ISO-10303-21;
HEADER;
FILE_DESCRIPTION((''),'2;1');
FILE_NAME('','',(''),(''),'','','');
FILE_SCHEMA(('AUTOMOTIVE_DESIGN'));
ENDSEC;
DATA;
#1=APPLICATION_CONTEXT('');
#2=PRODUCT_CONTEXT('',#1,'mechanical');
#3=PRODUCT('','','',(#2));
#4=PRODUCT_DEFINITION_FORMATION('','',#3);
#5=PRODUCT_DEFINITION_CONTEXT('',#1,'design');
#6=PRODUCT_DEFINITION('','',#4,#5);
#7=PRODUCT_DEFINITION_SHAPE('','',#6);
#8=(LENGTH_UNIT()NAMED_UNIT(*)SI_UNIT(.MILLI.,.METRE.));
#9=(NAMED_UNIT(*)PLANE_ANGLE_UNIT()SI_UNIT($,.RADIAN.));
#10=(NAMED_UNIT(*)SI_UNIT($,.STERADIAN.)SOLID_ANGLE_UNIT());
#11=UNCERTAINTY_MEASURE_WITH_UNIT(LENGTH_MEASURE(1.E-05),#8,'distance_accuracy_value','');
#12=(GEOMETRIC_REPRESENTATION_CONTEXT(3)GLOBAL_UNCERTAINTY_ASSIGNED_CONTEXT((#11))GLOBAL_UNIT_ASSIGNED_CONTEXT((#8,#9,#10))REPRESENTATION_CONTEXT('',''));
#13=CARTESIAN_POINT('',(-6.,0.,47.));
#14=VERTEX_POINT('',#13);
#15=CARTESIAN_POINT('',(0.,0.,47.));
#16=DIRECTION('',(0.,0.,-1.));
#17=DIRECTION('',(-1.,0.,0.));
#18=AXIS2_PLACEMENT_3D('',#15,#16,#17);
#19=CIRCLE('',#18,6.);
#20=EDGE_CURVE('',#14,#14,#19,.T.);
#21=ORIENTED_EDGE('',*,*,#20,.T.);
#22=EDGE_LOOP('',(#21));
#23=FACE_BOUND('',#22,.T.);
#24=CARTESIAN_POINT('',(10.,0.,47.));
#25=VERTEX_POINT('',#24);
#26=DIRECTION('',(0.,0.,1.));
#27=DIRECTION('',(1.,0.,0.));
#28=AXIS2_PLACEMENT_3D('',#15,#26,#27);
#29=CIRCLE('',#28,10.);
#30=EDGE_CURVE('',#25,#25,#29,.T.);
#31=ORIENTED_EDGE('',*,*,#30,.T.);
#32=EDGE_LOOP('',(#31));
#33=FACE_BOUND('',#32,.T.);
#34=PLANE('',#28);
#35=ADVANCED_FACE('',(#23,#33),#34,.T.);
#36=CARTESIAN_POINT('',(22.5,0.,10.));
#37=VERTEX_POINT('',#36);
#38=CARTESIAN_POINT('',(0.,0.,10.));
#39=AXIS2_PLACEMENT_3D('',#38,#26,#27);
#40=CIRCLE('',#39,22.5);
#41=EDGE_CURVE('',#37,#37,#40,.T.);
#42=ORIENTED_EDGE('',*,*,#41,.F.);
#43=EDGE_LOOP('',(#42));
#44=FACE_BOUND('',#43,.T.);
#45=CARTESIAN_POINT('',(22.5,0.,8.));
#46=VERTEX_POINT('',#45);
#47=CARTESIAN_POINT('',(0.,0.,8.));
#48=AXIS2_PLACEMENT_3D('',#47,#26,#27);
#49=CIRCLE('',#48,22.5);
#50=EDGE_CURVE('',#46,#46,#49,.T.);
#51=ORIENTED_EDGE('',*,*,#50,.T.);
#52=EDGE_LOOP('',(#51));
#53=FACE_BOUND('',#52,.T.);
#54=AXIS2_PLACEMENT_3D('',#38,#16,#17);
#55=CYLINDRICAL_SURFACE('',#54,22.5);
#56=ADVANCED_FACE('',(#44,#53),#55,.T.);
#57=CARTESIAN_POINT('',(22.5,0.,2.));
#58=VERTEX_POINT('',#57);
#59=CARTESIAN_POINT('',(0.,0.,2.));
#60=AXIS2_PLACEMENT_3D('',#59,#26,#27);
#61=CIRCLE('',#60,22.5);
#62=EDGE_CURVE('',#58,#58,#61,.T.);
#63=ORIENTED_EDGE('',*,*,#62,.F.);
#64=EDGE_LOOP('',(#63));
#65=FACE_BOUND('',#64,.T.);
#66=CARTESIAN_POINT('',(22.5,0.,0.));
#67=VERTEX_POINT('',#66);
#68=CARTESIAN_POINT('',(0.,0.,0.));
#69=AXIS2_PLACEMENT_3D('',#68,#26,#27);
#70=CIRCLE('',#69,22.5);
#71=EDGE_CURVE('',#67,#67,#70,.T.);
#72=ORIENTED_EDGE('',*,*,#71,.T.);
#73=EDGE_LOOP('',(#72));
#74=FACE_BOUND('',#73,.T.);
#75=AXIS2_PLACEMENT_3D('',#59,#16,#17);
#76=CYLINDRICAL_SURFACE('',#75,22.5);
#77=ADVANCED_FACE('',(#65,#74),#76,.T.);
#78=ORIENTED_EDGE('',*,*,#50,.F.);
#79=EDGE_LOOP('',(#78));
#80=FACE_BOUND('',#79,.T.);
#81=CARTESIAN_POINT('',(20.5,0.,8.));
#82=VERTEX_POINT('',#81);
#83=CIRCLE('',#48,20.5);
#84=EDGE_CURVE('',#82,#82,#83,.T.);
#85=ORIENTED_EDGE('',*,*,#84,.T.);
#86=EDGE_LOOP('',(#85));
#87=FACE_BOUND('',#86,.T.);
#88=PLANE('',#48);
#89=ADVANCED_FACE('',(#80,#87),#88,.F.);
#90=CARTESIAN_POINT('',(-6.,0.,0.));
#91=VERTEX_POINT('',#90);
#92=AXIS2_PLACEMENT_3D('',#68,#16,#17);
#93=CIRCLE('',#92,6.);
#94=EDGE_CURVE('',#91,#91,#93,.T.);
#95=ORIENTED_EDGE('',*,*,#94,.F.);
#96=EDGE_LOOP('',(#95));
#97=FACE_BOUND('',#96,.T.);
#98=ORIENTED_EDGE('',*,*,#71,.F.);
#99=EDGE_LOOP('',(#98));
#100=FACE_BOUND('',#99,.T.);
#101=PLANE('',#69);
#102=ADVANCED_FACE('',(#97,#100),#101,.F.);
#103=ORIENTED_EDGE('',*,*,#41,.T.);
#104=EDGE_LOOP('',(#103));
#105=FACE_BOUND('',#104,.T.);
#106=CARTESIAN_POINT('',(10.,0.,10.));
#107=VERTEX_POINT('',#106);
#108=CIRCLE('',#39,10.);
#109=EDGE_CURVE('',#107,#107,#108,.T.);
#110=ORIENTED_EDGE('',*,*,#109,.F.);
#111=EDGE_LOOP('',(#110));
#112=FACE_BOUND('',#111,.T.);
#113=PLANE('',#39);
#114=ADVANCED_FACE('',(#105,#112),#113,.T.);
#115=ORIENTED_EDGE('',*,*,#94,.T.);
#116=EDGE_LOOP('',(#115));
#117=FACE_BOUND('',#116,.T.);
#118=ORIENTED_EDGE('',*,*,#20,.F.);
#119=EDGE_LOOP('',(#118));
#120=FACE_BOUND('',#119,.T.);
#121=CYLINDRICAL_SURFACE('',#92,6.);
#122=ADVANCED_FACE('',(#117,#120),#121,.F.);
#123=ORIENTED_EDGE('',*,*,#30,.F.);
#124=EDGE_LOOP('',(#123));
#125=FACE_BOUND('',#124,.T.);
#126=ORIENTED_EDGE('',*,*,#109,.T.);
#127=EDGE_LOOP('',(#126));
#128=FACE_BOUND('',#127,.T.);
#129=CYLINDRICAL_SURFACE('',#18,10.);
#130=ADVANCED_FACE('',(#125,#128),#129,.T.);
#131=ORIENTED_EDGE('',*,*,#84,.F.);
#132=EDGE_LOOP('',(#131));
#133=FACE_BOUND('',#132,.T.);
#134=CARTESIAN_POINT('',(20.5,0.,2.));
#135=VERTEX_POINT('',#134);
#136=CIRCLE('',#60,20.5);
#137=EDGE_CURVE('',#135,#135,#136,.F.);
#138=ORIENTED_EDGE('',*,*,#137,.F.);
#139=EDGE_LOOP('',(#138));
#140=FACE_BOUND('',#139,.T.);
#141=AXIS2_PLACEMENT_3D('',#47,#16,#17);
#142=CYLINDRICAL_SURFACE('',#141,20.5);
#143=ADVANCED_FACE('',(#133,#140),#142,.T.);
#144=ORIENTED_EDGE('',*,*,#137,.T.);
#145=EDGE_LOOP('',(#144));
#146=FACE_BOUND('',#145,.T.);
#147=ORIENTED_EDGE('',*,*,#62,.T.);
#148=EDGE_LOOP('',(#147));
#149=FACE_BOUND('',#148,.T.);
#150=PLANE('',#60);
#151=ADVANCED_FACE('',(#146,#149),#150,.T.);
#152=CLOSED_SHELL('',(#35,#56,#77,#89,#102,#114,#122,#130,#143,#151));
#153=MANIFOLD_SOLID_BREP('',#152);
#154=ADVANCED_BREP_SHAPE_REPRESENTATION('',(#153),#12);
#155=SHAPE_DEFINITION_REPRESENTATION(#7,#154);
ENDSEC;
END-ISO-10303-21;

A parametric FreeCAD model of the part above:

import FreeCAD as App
import Part
import Sketcher

V = App.Vector

doc = App.newDocument("Part")
body = doc.addObject("PartDesign::Body", "Body")

sketch1 = body.newObject("Sketcher::SketchObject", "Sketch")
sketch1.AttachmentSupport = (doc.getObject("XY_Plane"), [""])
sketch1.MapMode = "FlatFace"
sketch1.addGeometry(Part.Circle(V(0, 0, 0), V(0, 0, 1), 22), False)
sketch1.addConstraint([
    Sketcher.Constraint("Coincident", 0, 3, -1, 1),
    Sketcher.Constraint("Diameter", 0, 45.0),
])
pad1 = body.newObject("PartDesign::Pad", "Pad")
pad1.Profile = sketch1
pad1.Length = 2

sketch2 = body.newObject("Sketcher::SketchObject", "Sketch001")
sketch2.AttachmentSupport = (doc.getObject("XY_Plane"), [""])
sketch2.MapMode = "FlatFace"
sketch2.addGeometry(Part.Circle(V(0, 0, 0), V(0, 0, 1), 20), False)
sketch2.addConstraint([
    Sketcher.Constraint("Coincident", 0, 3, -1, 1),
    Sketcher.Constraint("Diameter", 0, 41.0),
])
pad2 = body.newObject("PartDesign::Pad", "Pad001")
pad2.Profile = sketch2
pad2.Length = 8

sketch3 = body.newObject("Sketcher::SketchObject", "Sketch002")
sketch3.AttachmentSupport = (doc.getObject("XY_Plane"), [""])
sketch3.MapMode = "FlatFace"
sketch3.AttachmentOffset = App.Placement(V(0, 0, 8), App.Rotation())
sketch3.addGeometry(Part.Circle(V(0, 0, 0), V(0, 0, 1), 22), False)
sketch3.addConstraint([
    Sketcher.Constraint("Coincident", 0, 3, -1, 1),
    Sketcher.Constraint("Diameter", 0, 45.0),
])
pad3 = body.newObject("PartDesign::Pad", "Pad002")
pad3.Profile = sketch3
pad3.Length = 2

sketch4 = body.newObject("Sketcher::SketchObject", "Sketch003")
sketch4.AttachmentSupport = (doc.getObject("XY_Plane"), [""])
sketch4.MapMode = "FlatFace"
sketch4.addGeometry(Part.Circle(V(0, 0, 0), V(0, 0, 1), 2.5), False)
sketch4.addConstraint([
    Sketcher.Constraint("Coincident", 0, 3, -1, 1),
    Sketcher.Constraint("Diameter", 0, 5.0),
])
pocket1 = body.newObject("PartDesign::Pocket", "Pocket")
pocket1.Profile = sketch4
pocket1.Type = "ThroughAll"
pocket1.Midplane = True

sketch5 = body.newObject("Sketcher::SketchObject", "Sketch004")
sketch5.AttachmentSupport = (doc.getObject("XY_Plane"), [""])
sketch5.MapMode = "FlatFace"
sketch5.AttachmentOffset = App.Placement(V(0, 0, 10), App.Rotation())
sketch5.addGeometry(Part.Circle(V(0, 0, 0), V(0, 0, 1), 10), False)
sketch5.addConstraint([
    Sketcher.Constraint("Coincident", 0, 3, -1, 1),
    Sketcher.Constraint("Diameter", 0, 20.0),
])
pad4 = body.newObject("PartDesign::Pad", "Pad003")
pad4.Profile = sketch5
pad4.Length = 37

sketch6 = body.newObject("Sketcher::SketchObject", "Sketch005")
sketch6.AttachmentSupport = (doc.getObject("XY_Plane"), [""])
sketch6.MapMode = "FlatFace"
sketch6.addGeometry(Part.Circle(V(0, 0, 0), V(0, 0, 1), 6), False)
sketch6.addConstraint([
    Sketcher.Constraint("Coincident", 0, 3, -1, 1),
    Sketcher.Constraint("Diameter", 0, 12.0),
])
doc.recompute()
hole = body.newObject("PartDesign::Hole", "Hole")
hole.Profile = sketch6
hole.ThreadType = "None"
hole.Diameter = 12
hole.DepthType = "ThroughAll"
hole.Reversed = True

doc.recompute()
